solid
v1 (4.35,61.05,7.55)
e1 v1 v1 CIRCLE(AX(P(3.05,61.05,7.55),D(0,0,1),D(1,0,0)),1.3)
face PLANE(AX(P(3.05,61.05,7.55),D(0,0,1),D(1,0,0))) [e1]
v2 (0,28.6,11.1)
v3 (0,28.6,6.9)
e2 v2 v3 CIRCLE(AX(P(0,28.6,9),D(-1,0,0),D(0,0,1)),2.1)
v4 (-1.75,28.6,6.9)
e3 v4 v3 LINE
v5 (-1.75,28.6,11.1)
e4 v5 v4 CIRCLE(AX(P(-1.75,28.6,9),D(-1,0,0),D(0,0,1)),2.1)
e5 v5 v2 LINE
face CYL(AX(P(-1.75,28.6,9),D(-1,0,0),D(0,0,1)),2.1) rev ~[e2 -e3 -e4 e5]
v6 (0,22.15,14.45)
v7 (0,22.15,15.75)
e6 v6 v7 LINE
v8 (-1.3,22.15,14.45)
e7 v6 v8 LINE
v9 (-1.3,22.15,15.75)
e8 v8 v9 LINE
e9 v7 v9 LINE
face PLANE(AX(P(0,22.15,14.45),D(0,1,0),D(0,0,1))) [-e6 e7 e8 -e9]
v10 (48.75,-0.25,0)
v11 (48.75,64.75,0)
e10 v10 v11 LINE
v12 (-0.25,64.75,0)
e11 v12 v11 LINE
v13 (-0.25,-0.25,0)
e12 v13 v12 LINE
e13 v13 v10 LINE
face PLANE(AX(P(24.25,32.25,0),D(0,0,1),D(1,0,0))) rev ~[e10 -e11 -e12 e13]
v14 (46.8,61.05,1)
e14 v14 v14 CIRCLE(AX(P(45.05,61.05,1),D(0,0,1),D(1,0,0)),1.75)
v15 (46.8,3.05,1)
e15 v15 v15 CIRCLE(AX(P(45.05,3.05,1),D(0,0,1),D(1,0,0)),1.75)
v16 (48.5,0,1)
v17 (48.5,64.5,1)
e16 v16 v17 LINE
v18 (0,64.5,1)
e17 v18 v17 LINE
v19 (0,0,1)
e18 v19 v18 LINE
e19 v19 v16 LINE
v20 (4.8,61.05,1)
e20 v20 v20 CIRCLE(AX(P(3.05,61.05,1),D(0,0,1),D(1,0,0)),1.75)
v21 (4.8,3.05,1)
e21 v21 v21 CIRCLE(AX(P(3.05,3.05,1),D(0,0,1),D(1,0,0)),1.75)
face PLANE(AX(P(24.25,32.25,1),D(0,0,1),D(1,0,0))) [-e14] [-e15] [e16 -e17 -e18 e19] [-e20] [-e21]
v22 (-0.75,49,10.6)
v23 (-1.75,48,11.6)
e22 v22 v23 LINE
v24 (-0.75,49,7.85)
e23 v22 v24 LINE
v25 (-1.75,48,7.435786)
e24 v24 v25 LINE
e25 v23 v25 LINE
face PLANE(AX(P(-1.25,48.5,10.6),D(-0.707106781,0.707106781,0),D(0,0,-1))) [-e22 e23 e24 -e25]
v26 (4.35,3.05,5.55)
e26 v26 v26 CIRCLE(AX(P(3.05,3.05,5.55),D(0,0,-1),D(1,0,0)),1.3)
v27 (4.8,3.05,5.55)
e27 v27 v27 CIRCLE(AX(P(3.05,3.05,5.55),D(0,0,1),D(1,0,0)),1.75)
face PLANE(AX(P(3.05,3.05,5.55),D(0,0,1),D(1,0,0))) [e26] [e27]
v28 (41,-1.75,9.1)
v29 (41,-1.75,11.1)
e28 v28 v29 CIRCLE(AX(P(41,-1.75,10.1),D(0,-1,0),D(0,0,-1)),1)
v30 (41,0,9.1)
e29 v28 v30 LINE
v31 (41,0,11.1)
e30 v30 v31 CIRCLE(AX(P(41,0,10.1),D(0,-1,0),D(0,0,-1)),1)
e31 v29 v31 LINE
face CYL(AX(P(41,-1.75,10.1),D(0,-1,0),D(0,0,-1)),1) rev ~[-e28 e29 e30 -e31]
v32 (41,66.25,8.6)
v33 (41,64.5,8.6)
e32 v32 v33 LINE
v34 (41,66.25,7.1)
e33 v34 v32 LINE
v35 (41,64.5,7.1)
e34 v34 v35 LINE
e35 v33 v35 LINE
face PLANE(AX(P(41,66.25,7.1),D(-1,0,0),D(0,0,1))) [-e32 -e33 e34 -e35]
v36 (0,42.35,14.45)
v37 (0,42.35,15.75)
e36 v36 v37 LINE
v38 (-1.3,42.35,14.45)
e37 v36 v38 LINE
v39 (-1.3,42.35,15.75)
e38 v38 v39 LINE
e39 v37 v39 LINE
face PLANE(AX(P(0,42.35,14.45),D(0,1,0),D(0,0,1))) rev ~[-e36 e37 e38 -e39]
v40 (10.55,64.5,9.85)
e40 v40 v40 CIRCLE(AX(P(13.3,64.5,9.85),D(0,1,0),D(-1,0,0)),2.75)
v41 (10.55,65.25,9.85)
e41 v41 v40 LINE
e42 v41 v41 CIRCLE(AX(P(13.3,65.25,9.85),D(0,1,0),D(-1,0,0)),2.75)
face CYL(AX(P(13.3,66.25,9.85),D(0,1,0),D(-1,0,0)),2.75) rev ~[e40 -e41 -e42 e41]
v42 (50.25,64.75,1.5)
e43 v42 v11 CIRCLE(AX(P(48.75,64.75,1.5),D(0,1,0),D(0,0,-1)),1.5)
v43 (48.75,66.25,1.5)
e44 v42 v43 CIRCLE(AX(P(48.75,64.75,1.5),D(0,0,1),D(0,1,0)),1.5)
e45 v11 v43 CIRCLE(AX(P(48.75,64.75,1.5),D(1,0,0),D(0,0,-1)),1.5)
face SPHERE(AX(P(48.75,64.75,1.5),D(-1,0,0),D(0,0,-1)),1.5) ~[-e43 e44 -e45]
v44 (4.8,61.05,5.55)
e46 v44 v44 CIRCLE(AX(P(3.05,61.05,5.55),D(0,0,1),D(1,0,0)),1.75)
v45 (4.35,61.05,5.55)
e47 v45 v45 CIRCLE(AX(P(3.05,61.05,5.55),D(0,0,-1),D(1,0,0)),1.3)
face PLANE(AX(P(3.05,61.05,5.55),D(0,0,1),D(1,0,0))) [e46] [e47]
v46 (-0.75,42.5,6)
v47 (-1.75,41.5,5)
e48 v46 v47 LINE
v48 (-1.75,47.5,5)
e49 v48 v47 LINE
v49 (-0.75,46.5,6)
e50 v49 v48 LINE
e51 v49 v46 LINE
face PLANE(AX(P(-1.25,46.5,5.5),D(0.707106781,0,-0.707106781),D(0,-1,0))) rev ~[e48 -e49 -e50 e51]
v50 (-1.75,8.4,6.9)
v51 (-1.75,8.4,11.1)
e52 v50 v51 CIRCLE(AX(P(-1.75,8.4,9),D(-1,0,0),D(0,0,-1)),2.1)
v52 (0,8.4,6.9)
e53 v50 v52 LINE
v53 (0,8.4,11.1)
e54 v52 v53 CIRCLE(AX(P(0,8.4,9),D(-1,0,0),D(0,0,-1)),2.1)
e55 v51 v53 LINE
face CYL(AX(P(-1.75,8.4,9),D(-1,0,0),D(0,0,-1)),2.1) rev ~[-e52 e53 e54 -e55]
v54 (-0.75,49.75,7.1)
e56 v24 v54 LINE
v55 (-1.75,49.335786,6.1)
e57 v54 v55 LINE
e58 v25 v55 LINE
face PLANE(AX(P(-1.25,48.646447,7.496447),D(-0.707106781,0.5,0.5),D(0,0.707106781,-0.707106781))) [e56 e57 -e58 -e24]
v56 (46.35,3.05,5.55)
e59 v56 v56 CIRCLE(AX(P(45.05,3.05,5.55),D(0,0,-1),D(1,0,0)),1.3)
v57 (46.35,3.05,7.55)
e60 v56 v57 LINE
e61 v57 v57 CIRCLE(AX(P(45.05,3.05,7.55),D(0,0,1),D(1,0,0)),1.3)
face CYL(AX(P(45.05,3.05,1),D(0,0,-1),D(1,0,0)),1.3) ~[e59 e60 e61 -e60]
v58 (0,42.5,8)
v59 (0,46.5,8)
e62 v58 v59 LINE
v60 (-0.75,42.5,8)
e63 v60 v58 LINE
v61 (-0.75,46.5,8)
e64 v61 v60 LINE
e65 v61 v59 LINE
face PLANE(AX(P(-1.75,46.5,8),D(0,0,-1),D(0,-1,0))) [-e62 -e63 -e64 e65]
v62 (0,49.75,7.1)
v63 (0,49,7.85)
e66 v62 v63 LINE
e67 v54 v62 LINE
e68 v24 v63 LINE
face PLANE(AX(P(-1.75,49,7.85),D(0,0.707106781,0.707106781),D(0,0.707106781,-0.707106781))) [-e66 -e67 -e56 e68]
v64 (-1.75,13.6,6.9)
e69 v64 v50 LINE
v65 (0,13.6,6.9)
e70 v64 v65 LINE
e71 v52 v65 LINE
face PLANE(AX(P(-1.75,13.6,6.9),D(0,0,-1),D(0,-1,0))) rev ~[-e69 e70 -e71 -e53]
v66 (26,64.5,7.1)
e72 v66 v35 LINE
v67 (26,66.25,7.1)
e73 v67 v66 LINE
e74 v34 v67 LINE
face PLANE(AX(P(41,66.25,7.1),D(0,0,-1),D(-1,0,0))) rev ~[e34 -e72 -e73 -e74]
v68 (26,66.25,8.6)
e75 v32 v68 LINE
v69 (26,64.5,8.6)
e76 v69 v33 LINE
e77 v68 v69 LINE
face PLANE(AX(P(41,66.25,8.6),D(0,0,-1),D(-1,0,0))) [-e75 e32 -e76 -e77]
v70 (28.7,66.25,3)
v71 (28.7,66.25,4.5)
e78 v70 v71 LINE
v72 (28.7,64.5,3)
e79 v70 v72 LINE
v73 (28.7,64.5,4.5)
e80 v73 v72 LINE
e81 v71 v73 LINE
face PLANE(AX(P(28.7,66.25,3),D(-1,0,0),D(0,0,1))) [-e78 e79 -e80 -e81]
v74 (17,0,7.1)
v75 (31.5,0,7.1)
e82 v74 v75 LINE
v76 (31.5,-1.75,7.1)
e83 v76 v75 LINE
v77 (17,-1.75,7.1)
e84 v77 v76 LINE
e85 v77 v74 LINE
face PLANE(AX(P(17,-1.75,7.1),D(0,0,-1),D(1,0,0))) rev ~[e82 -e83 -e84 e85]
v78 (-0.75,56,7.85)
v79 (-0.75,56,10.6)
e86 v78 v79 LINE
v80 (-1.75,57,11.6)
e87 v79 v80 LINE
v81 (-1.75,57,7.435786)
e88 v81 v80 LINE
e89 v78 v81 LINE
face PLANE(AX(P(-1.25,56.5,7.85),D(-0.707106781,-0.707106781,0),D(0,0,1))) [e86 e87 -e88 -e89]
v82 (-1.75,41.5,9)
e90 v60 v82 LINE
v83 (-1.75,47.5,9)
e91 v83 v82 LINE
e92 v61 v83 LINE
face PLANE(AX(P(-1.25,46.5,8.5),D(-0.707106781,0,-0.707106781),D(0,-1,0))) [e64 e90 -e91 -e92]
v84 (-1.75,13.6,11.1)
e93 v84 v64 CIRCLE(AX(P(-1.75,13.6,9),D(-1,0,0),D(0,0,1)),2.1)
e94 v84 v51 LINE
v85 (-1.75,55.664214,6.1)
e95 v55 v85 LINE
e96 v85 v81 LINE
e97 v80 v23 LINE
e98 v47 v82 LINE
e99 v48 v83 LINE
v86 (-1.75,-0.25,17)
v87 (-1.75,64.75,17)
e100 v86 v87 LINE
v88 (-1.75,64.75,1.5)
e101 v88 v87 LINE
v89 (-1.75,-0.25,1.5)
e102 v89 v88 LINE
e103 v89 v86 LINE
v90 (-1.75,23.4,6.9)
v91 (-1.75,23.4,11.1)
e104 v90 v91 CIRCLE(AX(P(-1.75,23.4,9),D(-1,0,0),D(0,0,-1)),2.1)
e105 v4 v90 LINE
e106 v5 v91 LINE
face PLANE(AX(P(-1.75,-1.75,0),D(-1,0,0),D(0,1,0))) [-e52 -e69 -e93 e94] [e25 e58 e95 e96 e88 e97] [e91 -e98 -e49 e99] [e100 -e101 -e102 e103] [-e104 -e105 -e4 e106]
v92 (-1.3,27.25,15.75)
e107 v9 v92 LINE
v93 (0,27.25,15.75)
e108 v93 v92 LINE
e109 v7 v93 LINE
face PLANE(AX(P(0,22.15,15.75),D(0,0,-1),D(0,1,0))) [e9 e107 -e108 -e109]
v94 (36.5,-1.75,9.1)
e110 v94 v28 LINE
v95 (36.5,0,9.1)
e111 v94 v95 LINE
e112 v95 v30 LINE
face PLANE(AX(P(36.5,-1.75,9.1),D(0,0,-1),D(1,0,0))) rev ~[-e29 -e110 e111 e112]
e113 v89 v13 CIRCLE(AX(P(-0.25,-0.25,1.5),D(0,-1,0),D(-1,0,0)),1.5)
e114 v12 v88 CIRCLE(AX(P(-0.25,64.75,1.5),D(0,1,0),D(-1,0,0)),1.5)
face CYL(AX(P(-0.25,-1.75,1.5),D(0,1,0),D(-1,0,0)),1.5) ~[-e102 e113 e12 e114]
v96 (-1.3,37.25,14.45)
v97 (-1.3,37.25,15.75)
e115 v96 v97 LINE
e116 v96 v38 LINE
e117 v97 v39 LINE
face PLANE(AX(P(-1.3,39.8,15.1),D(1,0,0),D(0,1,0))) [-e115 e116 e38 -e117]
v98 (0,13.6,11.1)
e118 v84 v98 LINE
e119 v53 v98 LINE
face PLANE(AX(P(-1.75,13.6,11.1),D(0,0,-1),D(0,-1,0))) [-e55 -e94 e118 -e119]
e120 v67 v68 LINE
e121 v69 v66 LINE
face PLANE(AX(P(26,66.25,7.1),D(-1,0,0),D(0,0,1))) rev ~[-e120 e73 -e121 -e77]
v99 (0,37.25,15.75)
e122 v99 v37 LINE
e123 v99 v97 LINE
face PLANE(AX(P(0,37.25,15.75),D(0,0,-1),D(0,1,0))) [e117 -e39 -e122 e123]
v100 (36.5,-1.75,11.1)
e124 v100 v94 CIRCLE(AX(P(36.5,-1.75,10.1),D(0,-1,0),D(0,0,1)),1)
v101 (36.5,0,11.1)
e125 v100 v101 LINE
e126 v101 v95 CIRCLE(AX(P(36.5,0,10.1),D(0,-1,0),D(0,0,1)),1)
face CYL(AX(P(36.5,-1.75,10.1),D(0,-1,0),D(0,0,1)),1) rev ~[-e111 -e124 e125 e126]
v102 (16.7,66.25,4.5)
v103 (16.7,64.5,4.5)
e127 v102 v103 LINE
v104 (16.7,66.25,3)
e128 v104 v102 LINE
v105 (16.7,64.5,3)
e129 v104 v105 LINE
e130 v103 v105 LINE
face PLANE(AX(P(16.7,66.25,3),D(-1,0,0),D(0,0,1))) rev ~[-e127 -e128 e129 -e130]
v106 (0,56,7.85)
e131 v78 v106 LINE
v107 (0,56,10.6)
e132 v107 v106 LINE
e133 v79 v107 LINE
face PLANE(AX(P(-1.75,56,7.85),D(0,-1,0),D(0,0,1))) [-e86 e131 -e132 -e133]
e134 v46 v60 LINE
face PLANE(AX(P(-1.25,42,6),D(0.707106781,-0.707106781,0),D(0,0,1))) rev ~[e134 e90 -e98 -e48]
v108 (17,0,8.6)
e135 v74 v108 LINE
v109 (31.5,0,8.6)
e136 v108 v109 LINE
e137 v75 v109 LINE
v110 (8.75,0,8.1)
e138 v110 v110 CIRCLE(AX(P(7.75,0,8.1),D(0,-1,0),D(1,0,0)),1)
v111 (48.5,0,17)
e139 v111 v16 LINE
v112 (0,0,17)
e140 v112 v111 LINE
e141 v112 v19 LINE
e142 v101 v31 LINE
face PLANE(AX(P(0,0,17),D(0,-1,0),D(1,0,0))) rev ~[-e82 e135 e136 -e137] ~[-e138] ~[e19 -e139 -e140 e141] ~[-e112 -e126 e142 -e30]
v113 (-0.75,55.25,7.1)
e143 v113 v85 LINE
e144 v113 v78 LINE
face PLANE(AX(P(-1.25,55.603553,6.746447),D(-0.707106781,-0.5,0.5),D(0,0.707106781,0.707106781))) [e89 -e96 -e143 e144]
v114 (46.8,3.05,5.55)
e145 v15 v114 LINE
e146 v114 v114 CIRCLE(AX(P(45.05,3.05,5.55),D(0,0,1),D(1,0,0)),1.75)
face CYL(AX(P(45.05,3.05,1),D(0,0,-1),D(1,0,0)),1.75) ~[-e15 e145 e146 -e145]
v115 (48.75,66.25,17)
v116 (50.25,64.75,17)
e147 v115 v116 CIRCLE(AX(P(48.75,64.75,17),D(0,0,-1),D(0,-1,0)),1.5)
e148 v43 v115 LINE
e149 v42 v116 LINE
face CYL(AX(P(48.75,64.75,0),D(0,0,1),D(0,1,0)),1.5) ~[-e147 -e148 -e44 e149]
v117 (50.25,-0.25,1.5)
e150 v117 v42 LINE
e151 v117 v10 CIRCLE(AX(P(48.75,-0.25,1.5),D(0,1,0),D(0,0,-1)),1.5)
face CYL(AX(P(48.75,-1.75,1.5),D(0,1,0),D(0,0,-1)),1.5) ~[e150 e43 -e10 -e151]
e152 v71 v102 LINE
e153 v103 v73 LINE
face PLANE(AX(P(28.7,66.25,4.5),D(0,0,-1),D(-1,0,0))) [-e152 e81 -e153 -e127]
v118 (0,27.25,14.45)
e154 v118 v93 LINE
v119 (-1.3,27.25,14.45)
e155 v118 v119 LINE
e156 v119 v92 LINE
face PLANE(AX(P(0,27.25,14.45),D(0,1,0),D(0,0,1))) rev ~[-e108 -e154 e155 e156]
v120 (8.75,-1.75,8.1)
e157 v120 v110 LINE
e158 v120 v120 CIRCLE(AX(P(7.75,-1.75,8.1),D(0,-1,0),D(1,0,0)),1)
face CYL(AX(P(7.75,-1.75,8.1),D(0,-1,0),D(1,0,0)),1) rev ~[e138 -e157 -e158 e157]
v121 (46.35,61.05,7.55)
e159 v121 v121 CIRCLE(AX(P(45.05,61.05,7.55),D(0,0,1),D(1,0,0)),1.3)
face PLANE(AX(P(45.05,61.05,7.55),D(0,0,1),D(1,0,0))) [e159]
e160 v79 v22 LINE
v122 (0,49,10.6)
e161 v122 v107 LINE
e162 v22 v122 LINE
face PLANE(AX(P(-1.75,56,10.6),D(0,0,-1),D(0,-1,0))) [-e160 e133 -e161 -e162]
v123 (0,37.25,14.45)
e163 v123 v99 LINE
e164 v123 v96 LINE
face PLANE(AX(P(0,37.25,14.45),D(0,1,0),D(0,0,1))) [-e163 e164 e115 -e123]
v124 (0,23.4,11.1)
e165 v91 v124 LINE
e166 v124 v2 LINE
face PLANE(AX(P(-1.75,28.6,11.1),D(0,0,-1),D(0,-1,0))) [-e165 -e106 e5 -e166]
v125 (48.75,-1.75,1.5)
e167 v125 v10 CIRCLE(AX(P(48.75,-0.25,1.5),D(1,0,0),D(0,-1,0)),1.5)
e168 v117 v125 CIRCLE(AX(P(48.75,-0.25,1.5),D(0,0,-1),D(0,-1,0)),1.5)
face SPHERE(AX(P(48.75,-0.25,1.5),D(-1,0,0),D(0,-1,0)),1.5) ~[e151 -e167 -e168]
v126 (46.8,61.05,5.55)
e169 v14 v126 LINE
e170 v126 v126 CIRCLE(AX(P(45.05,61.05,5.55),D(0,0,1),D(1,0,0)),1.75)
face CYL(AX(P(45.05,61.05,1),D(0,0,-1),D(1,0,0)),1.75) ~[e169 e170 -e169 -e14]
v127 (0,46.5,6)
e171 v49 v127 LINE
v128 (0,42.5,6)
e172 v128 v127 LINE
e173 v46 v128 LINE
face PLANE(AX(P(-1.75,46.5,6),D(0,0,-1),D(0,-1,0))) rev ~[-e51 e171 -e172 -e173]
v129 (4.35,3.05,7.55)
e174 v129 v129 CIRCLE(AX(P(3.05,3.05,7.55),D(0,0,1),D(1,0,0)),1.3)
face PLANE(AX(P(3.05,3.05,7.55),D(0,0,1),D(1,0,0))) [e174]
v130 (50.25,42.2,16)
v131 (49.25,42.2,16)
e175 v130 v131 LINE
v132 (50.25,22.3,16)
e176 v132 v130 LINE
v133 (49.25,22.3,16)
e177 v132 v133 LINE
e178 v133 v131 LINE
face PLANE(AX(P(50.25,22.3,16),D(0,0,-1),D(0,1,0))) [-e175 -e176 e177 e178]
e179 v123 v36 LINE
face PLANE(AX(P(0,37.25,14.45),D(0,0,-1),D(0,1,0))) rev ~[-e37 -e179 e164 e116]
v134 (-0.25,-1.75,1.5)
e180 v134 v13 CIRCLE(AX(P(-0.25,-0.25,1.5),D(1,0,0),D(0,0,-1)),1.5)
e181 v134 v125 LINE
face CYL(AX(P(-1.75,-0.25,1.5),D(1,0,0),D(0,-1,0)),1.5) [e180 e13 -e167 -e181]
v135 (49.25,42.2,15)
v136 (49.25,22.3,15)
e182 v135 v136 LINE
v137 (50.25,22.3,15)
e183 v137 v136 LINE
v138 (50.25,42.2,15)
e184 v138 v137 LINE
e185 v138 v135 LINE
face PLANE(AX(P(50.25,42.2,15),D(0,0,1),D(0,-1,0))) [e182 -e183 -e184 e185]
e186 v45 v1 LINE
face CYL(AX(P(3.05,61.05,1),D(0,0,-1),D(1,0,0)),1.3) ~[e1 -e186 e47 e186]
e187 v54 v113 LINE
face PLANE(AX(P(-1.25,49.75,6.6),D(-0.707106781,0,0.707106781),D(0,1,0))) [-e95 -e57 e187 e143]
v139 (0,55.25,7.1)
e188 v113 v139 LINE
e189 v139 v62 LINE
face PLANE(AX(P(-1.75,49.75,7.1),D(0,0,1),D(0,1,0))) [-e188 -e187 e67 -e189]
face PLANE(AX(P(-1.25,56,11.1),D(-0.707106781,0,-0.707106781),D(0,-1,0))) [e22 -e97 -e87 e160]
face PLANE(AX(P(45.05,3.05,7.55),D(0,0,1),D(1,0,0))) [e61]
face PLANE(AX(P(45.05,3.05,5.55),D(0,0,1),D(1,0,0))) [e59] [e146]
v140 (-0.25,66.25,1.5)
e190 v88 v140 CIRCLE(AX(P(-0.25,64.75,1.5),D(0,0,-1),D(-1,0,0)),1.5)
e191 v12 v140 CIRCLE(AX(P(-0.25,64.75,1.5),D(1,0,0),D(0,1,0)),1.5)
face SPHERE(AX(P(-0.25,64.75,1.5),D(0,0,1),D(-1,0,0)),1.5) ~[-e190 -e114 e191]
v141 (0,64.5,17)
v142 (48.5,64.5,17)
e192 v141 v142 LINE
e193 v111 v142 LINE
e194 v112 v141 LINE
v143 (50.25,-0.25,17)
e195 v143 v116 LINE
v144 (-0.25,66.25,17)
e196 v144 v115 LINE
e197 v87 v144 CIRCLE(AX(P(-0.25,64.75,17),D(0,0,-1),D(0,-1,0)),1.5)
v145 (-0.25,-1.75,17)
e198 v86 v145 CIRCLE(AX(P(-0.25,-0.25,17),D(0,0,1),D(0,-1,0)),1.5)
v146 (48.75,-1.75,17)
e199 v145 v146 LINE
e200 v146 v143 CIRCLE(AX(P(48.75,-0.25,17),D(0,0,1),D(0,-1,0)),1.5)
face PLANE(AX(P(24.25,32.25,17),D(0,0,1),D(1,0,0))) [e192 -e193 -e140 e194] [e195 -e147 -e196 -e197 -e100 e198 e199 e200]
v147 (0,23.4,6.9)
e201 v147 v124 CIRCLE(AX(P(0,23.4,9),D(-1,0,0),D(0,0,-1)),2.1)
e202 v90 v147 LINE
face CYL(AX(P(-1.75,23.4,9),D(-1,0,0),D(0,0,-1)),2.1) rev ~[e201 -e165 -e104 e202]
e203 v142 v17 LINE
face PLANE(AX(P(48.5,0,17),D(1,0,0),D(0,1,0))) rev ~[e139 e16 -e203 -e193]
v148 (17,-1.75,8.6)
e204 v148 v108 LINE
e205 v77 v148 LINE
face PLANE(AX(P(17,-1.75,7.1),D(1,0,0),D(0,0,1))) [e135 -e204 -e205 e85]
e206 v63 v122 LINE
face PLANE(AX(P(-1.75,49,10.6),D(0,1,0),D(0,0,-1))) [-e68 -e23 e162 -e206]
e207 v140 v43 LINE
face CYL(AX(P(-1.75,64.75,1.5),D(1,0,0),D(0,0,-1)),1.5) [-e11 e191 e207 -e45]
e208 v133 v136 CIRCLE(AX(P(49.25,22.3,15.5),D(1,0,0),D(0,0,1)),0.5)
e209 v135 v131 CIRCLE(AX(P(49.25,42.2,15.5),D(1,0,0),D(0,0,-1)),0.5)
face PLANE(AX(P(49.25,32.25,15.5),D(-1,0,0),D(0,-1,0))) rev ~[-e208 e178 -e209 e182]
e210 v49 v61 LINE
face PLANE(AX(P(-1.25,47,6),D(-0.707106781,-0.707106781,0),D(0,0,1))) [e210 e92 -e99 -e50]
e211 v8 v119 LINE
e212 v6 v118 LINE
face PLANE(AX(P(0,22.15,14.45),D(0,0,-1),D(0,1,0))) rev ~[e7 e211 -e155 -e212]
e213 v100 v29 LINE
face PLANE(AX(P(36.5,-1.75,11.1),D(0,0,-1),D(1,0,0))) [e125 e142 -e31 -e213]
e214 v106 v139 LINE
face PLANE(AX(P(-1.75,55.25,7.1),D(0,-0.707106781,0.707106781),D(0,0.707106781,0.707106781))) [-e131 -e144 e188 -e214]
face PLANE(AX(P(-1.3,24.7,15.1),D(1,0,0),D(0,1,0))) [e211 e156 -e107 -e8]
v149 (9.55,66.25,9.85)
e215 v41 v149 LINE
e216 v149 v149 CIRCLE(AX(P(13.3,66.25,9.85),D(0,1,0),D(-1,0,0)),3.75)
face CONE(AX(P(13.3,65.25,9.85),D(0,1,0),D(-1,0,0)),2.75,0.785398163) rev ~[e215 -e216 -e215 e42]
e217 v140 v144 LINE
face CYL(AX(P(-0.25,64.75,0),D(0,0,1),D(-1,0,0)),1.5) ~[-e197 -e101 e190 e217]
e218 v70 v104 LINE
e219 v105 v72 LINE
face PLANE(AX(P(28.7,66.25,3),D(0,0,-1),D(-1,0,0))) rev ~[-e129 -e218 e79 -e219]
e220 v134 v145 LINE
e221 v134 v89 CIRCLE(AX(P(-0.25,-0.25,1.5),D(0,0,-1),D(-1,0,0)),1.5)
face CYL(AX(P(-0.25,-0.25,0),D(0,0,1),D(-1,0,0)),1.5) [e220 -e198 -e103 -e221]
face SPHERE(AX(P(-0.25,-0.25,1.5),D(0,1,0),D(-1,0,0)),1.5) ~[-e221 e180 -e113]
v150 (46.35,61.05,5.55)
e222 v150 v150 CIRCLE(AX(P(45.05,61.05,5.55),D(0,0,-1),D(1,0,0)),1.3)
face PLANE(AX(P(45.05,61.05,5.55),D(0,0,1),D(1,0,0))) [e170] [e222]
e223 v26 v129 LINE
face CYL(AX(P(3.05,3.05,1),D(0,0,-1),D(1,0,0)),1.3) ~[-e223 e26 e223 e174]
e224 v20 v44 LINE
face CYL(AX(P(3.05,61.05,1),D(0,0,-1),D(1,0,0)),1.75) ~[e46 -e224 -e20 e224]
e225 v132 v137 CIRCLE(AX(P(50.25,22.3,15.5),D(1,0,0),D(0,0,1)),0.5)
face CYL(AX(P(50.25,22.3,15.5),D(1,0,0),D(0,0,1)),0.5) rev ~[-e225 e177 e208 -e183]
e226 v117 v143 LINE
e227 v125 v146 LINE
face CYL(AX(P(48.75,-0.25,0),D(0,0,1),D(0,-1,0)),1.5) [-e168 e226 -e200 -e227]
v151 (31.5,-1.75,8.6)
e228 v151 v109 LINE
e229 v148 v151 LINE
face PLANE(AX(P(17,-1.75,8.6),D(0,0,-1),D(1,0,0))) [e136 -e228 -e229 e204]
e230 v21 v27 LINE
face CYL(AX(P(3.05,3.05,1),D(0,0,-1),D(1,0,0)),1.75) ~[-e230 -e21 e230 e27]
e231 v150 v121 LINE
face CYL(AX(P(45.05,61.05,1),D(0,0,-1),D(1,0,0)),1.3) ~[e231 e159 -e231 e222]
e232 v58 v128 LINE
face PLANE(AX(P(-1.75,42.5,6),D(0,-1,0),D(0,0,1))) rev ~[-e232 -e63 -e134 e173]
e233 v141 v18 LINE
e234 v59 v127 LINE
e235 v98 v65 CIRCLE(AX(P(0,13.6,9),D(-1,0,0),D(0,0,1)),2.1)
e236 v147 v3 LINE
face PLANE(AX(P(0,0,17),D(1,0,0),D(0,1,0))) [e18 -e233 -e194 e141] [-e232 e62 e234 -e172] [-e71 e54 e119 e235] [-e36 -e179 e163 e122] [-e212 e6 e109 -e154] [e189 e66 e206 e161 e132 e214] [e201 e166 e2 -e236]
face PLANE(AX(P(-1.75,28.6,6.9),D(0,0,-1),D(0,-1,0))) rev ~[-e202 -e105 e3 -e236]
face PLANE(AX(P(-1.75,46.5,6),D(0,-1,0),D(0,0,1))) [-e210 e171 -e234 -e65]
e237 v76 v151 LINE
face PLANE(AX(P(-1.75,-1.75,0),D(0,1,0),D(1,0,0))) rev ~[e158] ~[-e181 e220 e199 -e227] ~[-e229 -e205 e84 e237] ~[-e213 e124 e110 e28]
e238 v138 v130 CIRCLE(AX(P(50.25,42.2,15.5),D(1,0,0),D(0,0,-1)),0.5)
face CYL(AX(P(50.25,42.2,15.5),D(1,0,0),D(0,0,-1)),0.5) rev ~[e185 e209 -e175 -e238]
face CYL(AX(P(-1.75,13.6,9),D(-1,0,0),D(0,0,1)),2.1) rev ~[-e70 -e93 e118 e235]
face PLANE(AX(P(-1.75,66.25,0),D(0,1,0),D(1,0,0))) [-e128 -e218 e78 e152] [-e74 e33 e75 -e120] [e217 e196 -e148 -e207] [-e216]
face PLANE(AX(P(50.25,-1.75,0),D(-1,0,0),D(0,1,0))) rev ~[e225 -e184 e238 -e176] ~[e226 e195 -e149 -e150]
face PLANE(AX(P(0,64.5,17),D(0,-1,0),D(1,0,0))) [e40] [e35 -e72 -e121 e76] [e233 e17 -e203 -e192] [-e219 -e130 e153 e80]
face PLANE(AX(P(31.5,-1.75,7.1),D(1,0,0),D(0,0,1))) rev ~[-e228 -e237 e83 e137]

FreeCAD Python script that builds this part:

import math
import FreeCAD as App
import Part
import Sketcher


def edges_at(feature, points):
    """Names of the edges that pass closest to the given points."""
    edges = feature.Shape.Edges
    near = lambda p: min(range(len(edges)), key=lambda i: edges[i].distToShape(Part.Vertex(*p))[0])
    return sorted({f"Edge{near(p) + 1}" for p in points})

doc = App.newDocument("Part")
body = doc.addObject("PartDesign::Body", "Body")

sketch1 = body.newObject("Sketcher::SketchObject", "Sketch")
sketch1.AttachmentSupport = (doc.getObject("XY_Plane"), [""])
sketch1.MapMode = "FlatFace"
sketch1.addGeometry(Part.LineSegment(App.Vector(-2, 66, 0), App.Vector(-2, -2, 0)), False)
sketch1.addGeometry(Part.LineSegment(App.Vector(-2, -2, 0), App.Vector(50, -2, 0)), False)
sketch1.addGeometry(Part.LineSegment(App.Vector(50, -2, 0), App.Vector(50, 66, 0)), False)
sketch1.addGeometry(Part.LineSegment(App.Vector(50, 66, 0), App.Vector(-2, 66, 0)), False)
sketch1.addConstraint(Sketcher.Constraint("Coincident", 0, 2, 1, 1))
sketch1.addConstraint(Sketcher.Constraint("Coincident", 1, 2, 2, 1))
sketch1.addConstraint(Sketcher.Constraint("Coincident", 2, 2, 3, 1))
sketch1.addConstraint(Sketcher.Constraint("Coincident", 3, 2, 0, 1))
sketch1.addConstraint(Sketcher.Constraint("Vertical", 0))
sketch1.addConstraint(Sketcher.Constraint("Horizontal", 1))
sketch1.addConstraint(Sketcher.Constraint("Vertical", 2))
sketch1.addConstraint(Sketcher.Constraint("Horizontal", 3))
sketch1.addConstraint(Sketcher.Constraint("DistanceX", 1, 1, 1, 2, 52.0))
sketch1.addConstraint(Sketcher.Constraint("DistanceY", 0, 2, 0, 1, 68.0))
sketch1.addConstraint(Sketcher.Constraint("DistanceX", 0, 2, -1, 1, 1.75))
sketch1.addConstraint(Sketcher.Constraint("DistanceY", 0, 2, -1, 1, 1.75))
pad1 = body.newObject("PartDesign::Pad", "Pad")
pad1.Profile = sketch1
pad1.Length = 17

sketch2 = body.newObject("Sketcher::SketchObject", "Sketch001")
sketch2.AttachmentSupport = (doc.getObject("XY_Plane"), [""])
sketch2.MapMode = "FlatFace"
sketch2.AttachmentOffset = App.Placement(App.Vector(0, 0, 17), App.Rotation())
sketch2.addGeometry(Part.LineSegment(App.Vector(0, 64, 0), App.Vector(0, 0, 0)), False)
sketch2.addGeometry(Part.LineSegment(App.Vector(0, 0, 0), App.Vector(48, 0, 0)), False)
sketch2.addGeometry(Part.LineSegment(App.Vector(48, 0, 0), App.Vector(48, 64, 0)), False)
sketch2.addGeometry(Part.LineSegment(App.Vector(48, 64, 0), App.Vector(0, 64, 0)), False)
sketch2.addConstraint(Sketcher.Constraint("Coincident", 0, 2, 1, 1))
sketch2.addConstraint(Sketcher.Constraint("Coincident", 1, 2, 2, 1))
sketch2.addConstraint(Sketcher.Constraint("Coincident", 2, 2, 3, 1))
sketch2.addConstraint(Sketcher.Constraint("Coincident", 3, 2, 0, 1))
sketch2.addConstraint(Sketcher.Constraint("Vertical", 0))
sketch2.addConstraint(Sketcher.Constraint("Horizontal", 1))
sketch2.addConstraint(Sketcher.Constraint("Vertical", 2))
sketch2.addConstraint(Sketcher.Constraint("Horizontal", 3))
sketch2.addConstraint(Sketcher.Constraint("Coincident", 0, 2, -1, 1))
sketch2.addConstraint(Sketcher.Constraint("DistanceX", 1, 1, 1, 2, 48.5))
sketch2.addConstraint(Sketcher.Constraint("DistanceY", 0, 2, 0, 1, 64.5))
pocket1 = body.newObject("PartDesign::Pocket", "Pocket")
pocket1.Profile = sketch2
pocket1.Length = 16

sketch3 = body.newObject("Sketcher::SketchObject", "Sketch002")
sketch3.AttachmentSupport = (doc.getObject("XY_Plane"), [""])
sketch3.MapMode = "FlatFace"
sketch3.AttachmentOffset = App.Placement(App.Vector(0, 0, 1), App.Rotation())
sketch3.addGeometry(Part.Circle(App.Vector(3, 3, 0), App.Vector(0, 0, 1), 1.8), False)
sketch3.addGeometry(Part.Circle(App.Vector(3, 61, 0), App.Vector(0, 0, 1), 1.8), False)
sketch3.addGeometry(Part.Circle(App.Vector(45, 3, 0), App.Vector(0, 0, 1), 1.8), False)
sketch3.addGeometry(Part.Circle(App.Vector(45, 61, 0), App.Vector(0, 0, 1), 1.8), False)
sketch3.addConstraint(Sketcher.Constraint("Equal", 0, 1))
sketch3.addConstraint(Sketcher.Constraint("Equal", 1, 2))
sketch3.addConstraint(Sketcher.Constraint("Equal", 2, 3))
sketch3.addConstraint(Sketcher.Constraint("Horizontal", 0, 3, 2, 3))
sketch3.addConstraint(Sketcher.Constraint("Horizontal", 1, 3, 3, 3))
sketch3.addConstraint(Sketcher.Constraint("Vertical", 0, 3, 1, 3))
sketch3.addConstraint(Sketcher.Constraint("Vertical", 2, 3, 3, 3))
sketch3.addConstraint(Sketcher.Constraint("Diameter", 0, 3.5))
sketch3.addConstraint(Sketcher.Constraint("DistanceY", 0, 3, 1, 3, 58.0))
sketch3.addConstraint(Sketcher.Constraint("DistanceX", 0, 3, 2, 3, 42.0))
sketch3.addConstraint(Sketcher.Constraint("DistanceX", -1, 1, 0, 3, 3.05))
sketch3.addConstraint(Sketcher.Constraint("DistanceY", -1, 1, 0, 3, 3.05))
pad2 = body.newObject("PartDesign::Pad", "Pad001")
pad2.Profile = sketch3
pad2.Length = 4.55

sketch4 = body.newObject("Sketcher::SketchObject", "Sketch003")
sketch4.AttachmentSupport = (doc.getObject("XY_Plane"), [""])
sketch4.MapMode = "FlatFace"
sketch4.AttachmentOffset = App.Placement(App.Vector(0, 0, 1), App.Rotation())
sketch4.addGeometry(Part.Circle(App.Vector(3, 61, 0), App.Vector(0, 0, 1), 1.3), False)
sketch4.addGeometry(Part.Circle(App.Vector(45, 61, 0), App.Vector(0, 0, 1), 1.3), False)
sketch4.addGeometry(Part.Circle(App.Vector(3, 3, 0), App.Vector(0, 0, 1), 1.3), False)
sketch4.addGeometry(Part.Circle(App.Vector(45, 3, 0), App.Vector(0, 0, 1), 1.3), False)
sketch4.addConstraint(Sketcher.Constraint("Equal", 0, 1))
sketch4.addConstraint(Sketcher.Constraint("Equal", 1, 2))
sketch4.addConstraint(Sketcher.Constraint("Equal", 2, 3))
sketch4.addConstraint(Sketcher.Constraint("Horizontal", 0, 3, 1, 3))
sketch4.addConstraint(Sketcher.Constraint("Horizontal", 2, 3, 3, 3))
sketch4.addConstraint(Sketcher.Constraint("Vertical", 0, 3, 2, 3))
sketch4.addConstraint(Sketcher.Constraint("Vertical", 1, 3, 3, 3))
sketch4.addConstraint(Sketcher.Constraint("Diameter", 0, 2.6))
sketch4.addConstraint(Sketcher.Constraint("DistanceX", 0, 3, 1, 3, 42.0))
sketch4.addConstraint(Sketcher.Constraint("DistanceY", 2, 3, 0, 3, 58.0))
sketch4.addConstraint(Sketcher.Constraint("DistanceX", -1, 1, 0, 3, 3.05))
sketch4.addConstraint(Sketcher.Constraint("DistanceY", -1, 1, 0, 3, 61.05))
pad3 = body.newObject("PartDesign::Pad", "Pad002")
pad3.Profile = sketch4
pad3.Length = 6.55

sketch5 = body.newObject("Sketcher::SketchObject", "Sketch004")
sketch5.AttachmentSupport = (doc.getObject("YZ_Plane"), [""])
sketch5.MapMode = "FlatFace"
sketch5.AttachmentOffset = App.Placement(App.Vector(0, 0, -1.75), App.Rotation())
sketch5.addGeometry(Part.ArcOfCircle(Part.Circle(App.Vector(28.6, 9, 0), App.Vector(0, 0, 1), 2.1), math.radians(-90), math.radians(90)), False)
sketch5.addGeometry(Part.LineSegment(App.Vector(28.6, 6.9, 0), App.Vector(23.4, 6.9, 0)), False)
sketch5.addGeometry(Part.ArcOfCircle(Part.Circle(App.Vector(23.4, 9, 0), App.Vector(0, 0, 1), 2.1), math.radians(90), math.radians(270)), False)
sketch5.addGeometry(Part.LineSegment(App.Vector(23.4, 11.1, 0), App.Vector(28.6, 11.1, 0)), False)
sketch5.addGeometry(Part.ArcOfCircle(Part.Circle(App.Vector(13.6, 9, 0), App.Vector(0, 0, 1), 2.1), math.radians(-90), math.radians(90)), False)
sketch5.addGeometry(Part.LineSegment(App.Vector(13.6, 6.9, 0), App.Vector(8.4, 6.9, 0)), False)
sketch5.addGeometry(Part.ArcOfCircle(Part.Circle(App.Vector(8.4, 9, 0), App.Vector(0, 0, 1), 2.1), math.radians(90), math.radians(270)), False)
sketch5.addGeometry(Part.LineSegment(App.Vector(8.4, 11.1, 0), App.Vector(13.6, 11.1, 0)), False)
sketch5.addGeometry(Part.LineSegment(App.Vector(46.5, 8, 0), App.Vector(46.5, 6, 0)), False)
sketch5.addGeometry(Part.LineSegment(App.Vector(46.5, 6, 0), App.Vector(42.5, 6, 0)), False)
sketch5.addGeometry(Part.LineSegment(App.Vector(42.5, 6, 0), App.Vector(42.5, 8, 0)), False)
sketch5.addGeometry(Part.LineSegment(App.Vector(42.5, 8, 0), App.Vector(46.5, 8, 0)), False)
sketch5.addConstraint(Sketcher.Constraint("Tangent", 0, 1, 1, 1))
sketch5.addConstraint(Sketcher.Constraint("Tangent", 1, 2, 2, 2))
sketch5.addConstraint(Sketcher.Constraint("Tangent", 2, 1, 3, 1))
sketch5.addConstraint(Sketcher.Constraint("Tangent", 3, 2, 0, 2))
sketch5.addConstraint(Sketcher.Constraint("Tangent", 4, 1, 5, 1))
sketch5.addConstraint(Sketcher.Constraint("Tangent", 5, 2, 6, 2))
sketch5.addConstraint(Sketcher.Constraint("Tangent", 6, 1, 7, 1))
sketch5.addConstraint(Sketcher.Constraint("Tangent", 7, 2, 4, 2))
sketch5.addConstraint(Sketcher.Constraint("Coincident", 8, 2, 9, 1))
sketch5.addConstraint(Sketcher.Constraint("Coincident", 9, 2, 10, 1))
sketch5.addConstraint(Sketcher.Constraint("Coincident", 10, 2, 11, 1))
sketch5.addConstraint(Sketcher.Constraint("Coincident", 11, 2, 8, 1))
sketch5.addConstraint(Sketcher.Constraint("Horizontal", 1))
sketch5.addConstraint(Sketcher.Constraint("Horizontal", 3))
sketch5.addConstraint(Sketcher.Constraint("Horizontal", 5))
sketch5.addConstraint(Sketcher.Constraint("Horizontal", 7))
sketch5.addConstraint(Sketcher.Constraint("Vertical", 8))
sketch5.addConstraint(Sketcher.Constraint("Horizontal", 9))
sketch5.addConstraint(Sketcher.Constraint("Vertical", 10))
sketch5.addConstraint(Sketcher.Constraint("Horizontal", 11))
sketch5.addConstraint(Sketcher.Constraint("Equal", 2, 4))
sketch5.addConstraint(Sketcher.Constraint("Horizontal", 2, 3, 4, 3))
sketch5.addConstraint(Sketcher.Constraint("Equal", 3, 5))
sketch5.addConstraint(Sketcher.Constraint("Radius", 0, 2.1))
sketch5.addConstraint(Sketcher.Constraint("DistanceX", 9, 2, 9, 1, 4.0))
sketch5.addConstraint(Sketcher.Constraint("DistanceY", 8, 2, 8, 1, 2.0))
sketch5.addConstraint(Sketcher.Constraint("DistanceX", 1, 2, 1, 1, 5.2))
sketch5.addConstraint(Sketcher.Constraint("DistanceY", -1, 1, 0, 3, 9.0))
sketch5.addConstraint(Sketcher.Constraint("DistanceY", -1, 1, 8, 2, 6.0))
sketch5.addConstraint(Sketcher.Constraint("DistanceX", 4, 3, 0, 3, 15.0))
sketch5.addConstraint(Sketcher.Constraint("DistanceX", -1, 1, 0, 3, 28.6))
sketch5.addConstraint(Sketcher.Constraint("DistanceX", -1, 1, 8, 2, 46.5))
pocket2 = body.newObject("PartDesign::Pocket", "Pocket001")
pocket2.Profile = sketch5
pocket2.Length = 5
pocket2.Reversed = True

sketch6 = body.newObject("Sketcher::SketchObject", "Sketch005")
sketch6.AttachmentSupport = (doc.getObject("YZ_Plane"), [""])
sketch6.MapMode = "FlatFace"
sketch6.AttachmentOffset = App.Placement(App.Vector(0, 0, -1.75), App.Rotation())
sketch6.addGeometry(Part.LineSegment(App.Vector(49, 10.6, 0), App.Vector(56, 10.6, 0)), False)
sketch6.addGeometry(Part.LineSegment(App.Vector(56, 10.6, 0), App.Vector(56, 7.8, 0)), False)
sketch6.addGeometry(Part.LineSegment(App.Vector(56, 7.8, 0), App.Vector(55.2, 7.1, 0)), False)
sketch6.addGeometry(Part.LineSegment(App.Vector(55.2, 7.1, 0), App.Vector(49.8, 7.1, 0)), False)
sketch6.addGeometry(Part.LineSegment(App.Vector(49.8, 7.1, 0), App.Vector(49, 7.8, 0)), False)
sketch6.addGeometry(Part.LineSegment(App.Vector(49, 7.8, 0), App.Vector(49, 10.6, 0)), False)
sketch6.addConstraint(Sketcher.Constraint("Coincident", 0, 2, 1, 1))
sketch6.addConstraint(Sketcher.Constraint("Coincident", 1, 2, 2, 1))
sketch6.addConstraint(Sketcher.Constraint("Coincident", 2, 2, 3, 1))
sketch6.addConstraint(Sketcher.Constraint("Coincident", 3, 2, 4, 1))
sketch6.addConstraint(Sketcher.Constraint("Coincident", 4, 2, 5, 1))
sketch6.addConstraint(Sketcher.Constraint("Coincident", 5, 2, 0, 1))
sketch6.addConstraint(Sketcher.Constraint("Horizontal", 0))
sketch6.addConstraint(Sketcher.Constraint("Vertical", 1))
sketch6.addConstraint(Sketcher.Constraint("Horizontal", 3))
sketch6.addConstraint(Sketcher.Constraint("Vertical", 5))
sketch6.addConstraint(Sketcher.Constraint("Perpendicular", 2, 4))
sketch6.addConstraint(Sketcher.Constraint("Horizontal", 1, 2, 4, 2))
sketch6.addConstraint(Sketcher.Constraint("Equal", 2, 4))
sketch6.addConstraint(Sketcher.Constraint("DistanceX", 0, 1, 0, 2, 7.0))
sketch6.addConstraint(Sketcher.Constraint("DistanceX", 3, 2, 3, 1, 5.5))
sketch6.addConstraint(Sketcher.Constraint("DistanceX", -1, 1, 0, 2, 56.0))
sketch6.addConstraint(Sketcher.Constraint("DistanceY", 1, 2, 1, 1, 2.75))
sketch6.addConstraint(Sketcher.Constraint("DistanceY", -1, 1, 0, 2, 10.6))
pocket3 = body.newObject("PartDesign::Pocket", "Pocket002")
pocket3.Profile = sketch6
pocket3.Length = 5
pocket3.Reversed = True

sketch7 = body.newObject("Sketcher::SketchObject", "Sketch006")
sketch7.AttachmentSupport = (doc.getObject("XZ_Plane"), [""])
sketch7.MapMode = "FlatFace"
sketch7.AttachmentOffset = App.Placement(App.Vector(0, 0, -66.25), App.Rotation())
sketch7.addGeometry(Part.Circle(App.Vector(13.3, 9.8, 0), App.Vector(0, 0, 1), 2.8), False)
sketch7.addGeometry(Part.LineSegment(App.Vector(28.7, 4.5, 0), App.Vector(28.7, 3, 0)), False)
sketch7.addGeometry(Part.LineSegment(App.Vector(28.7, 3, 0), App.Vector(16.7, 3, 0)), False)
sketch7.addGeometry(Part.LineSegment(App.Vector(16.7, 3, 0), App.Vector(16.7, 4.5, 0)), False)
sketch7.addGeometry(Part.LineSegment(App.Vector(16.7, 4.5, 0), App.Vector(28.7, 4.5, 0)), False)
sketch7.addGeometry(Part.LineSegment(App.Vector(41, 8.6, 0), App.Vector(41, 7.1, 0)), False)
sketch7.addGeometry(Part.LineSegment(App.Vector(41, 7.1, 0), App.Vector(26, 7.1, 0)), False)
sketch7.addGeometry(Part.LineSegment(App.Vector(26, 7.1, 0), App.Vector(26, 8.6, 0)), False)
sketch7.addGeometry(Part.LineSegment(App.Vector(26, 8.6, 0), App.Vector(41, 8.6, 0)), False)
sketch7.addConstraint(Sketcher.Constraint("Coincident", 1, 2, 2, 1))
sketch7.addConstraint(Sketcher.Constraint("Coincident", 2, 2, 3, 1))
sketch7.addConstraint(Sketcher.Constraint("Coincident", 3, 2, 4, 1))
sketch7.addConstraint(Sketcher.Constraint("Coincident", 4, 2, 1, 1))
sketch7.addConstraint(Sketcher.Constraint("Coincident", 5, 2, 6, 1))
sketch7.addConstraint(Sketcher.Constraint("Coincident", 6, 2, 7, 1))
sketch7.addConstraint(Sketcher.Constraint("Coincident", 7, 2, 8, 1))
sketch7.addConstraint(Sketcher.Constraint("Coincident", 8, 2, 5, 1))
sketch7.addConstraint(Sketcher.Constraint("Vertical", 1))
sketch7.addConstraint(Sketcher.Constraint("Horizontal", 2))
sketch7.addConstraint(Sketcher.Constraint("Vertical", 3))
sketch7.addConstraint(Sketcher.Constraint("Horizontal", 4))
sketch7.addConstraint(Sketcher.Constraint("Vertical", 5))
sketch7.addConstraint(Sketcher.Constraint("Horizontal", 6))
sketch7.addConstraint(Sketcher.Constraint("Vertical", 7))
sketch7.addConstraint(Sketcher.Constraint("Horizontal", 8))
sketch7.addConstraint(Sketcher.Constraint("Equal", 3, 5))
sketch7.addConstraint(Sketcher.Constraint("Diameter", 0, 5.5))
sketch7.addConstraint(Sketcher.Constraint("DistanceX", 2, 2, 2, 1, 12.0))
sketch7.addConstraint(Sketcher.Constraint("DistanceX", 6, 2, 6, 1, 15.0))
sketch7.addConstraint(Sketcher.Constraint("DistanceY", 1, 2, 1, 1, 1.5))
sketch7.addConstraint(Sketcher.Constraint("DistanceY", -1, 1, 1, 2, 3.0))
sketch7.addConstraint(Sketcher.Constraint("DistanceX", -1, 1, 5, 2, 41.0))
sketch7.addConstraint(Sketcher.Constraint("DistanceX", -1, 1, 0, 3, 13.3))
sketch7.addConstraint(Sketcher.Constraint("DistanceX", -1, 1, 1, 2, 28.7))
sketch7.addConstraint(Sketcher.Constraint("DistanceY", -1, 1, 5, 2, 7.1))
sketch7.addConstraint(Sketcher.Constraint("DistanceY", -1, 1, 0, 3, 9.85))
pocket4 = body.newObject("PartDesign::Pocket", "Pocket003")
pocket4.Profile = sketch7
pocket4.Length = 5
pocket4.Reversed = True

sketch8 = body.newObject("Sketcher::SketchObject", "Sketch007")
sketch8.AttachmentSupport = (doc.getObject("XZ_Plane"), [""])
sketch8.MapMode = "FlatFace"
sketch8.AttachmentOffset = App.Placement(App.Vector(0, 0, 1.75), App.Rotation())
sketch8.addGeometry(Part.Circle(App.Vector(7.8, 8.1, 0), App.Vector(0, 0, 1), 1), False)
sketch8.addGeometry(Part.LineSegment(App.Vector(17, 8.6, 0), App.Vector(17, 7.1, 0)), False)
sketch8.addGeometry(Part.LineSegment(App.Vector(17, 7.1, 0), App.Vector(31.5, 7.1, 0)), False)
sketch8.addGeometry(Part.LineSegment(App.Vector(31.5, 7.1, 0), App.Vector(31.5, 8.6, 0)), False)
sketch8.addGeometry(Part.LineSegment(App.Vector(31.5, 8.6, 0), App.Vector(17, 8.6, 0)), False)
sketch8.addGeometry(Part.ArcOfCircle(Part.Circle(App.Vector(36.5, 10.1, 0), App.Vector(0, 0, 1), 1), math.radians(90), math.radians(270)), False)
sketch8.addGeometry(Part.LineSegment(App.Vector(36.5, 9.1, 0), App.Vector(41, 9.1, 0)), False)
sketch8.addGeometry(Part.ArcOfCircle(Part.Circle(App.Vector(41, 10.1, 0), App.Vector(0, 0, 1), 1), math.radians(-90), math.radians(90)), False)
sketch8.addGeometry(Part.LineSegment(App.Vector(41, 11.1, 0), App.Vector(36.5, 11.1, 0)), False)
sketch8.addConstraint(Sketcher.Constraint("Coincident", 1, 2, 2, 1))
sketch8.addConstraint(Sketcher.Constraint("Coincident", 2, 2, 3, 1))
sketch8.addConstraint(Sketcher.Constraint("Coincident", 3, 2, 4, 1))
sketch8.addConstraint(Sketcher.Constraint("Coincident", 4, 2, 1, 1))
sketch8.addConstraint(Sketcher.Constraint("Tangent", 5, 2, 6, 1))
sketch8.addConstraint(Sketcher.Constraint("Tangent", 6, 2, 7, 1))
sketch8.addConstraint(Sketcher.Constraint("Tangent", 7, 2, 8, 1))
sketch8.addConstraint(Sketcher.Constraint("Tangent", 8, 2, 5, 1))
sketch8.addConstraint(Sketcher.Constraint("Vertical", 1))
sketch8.addConstraint(Sketcher.Constraint("Horizontal", 2))
sketch8.addConstraint(Sketcher.Constraint("Vertical", 3))
sketch8.addConstraint(Sketcher.Constraint("Horizontal", 4))
sketch8.addConstraint(Sketcher.Constraint("Horizontal", 6))
sketch8.addConstraint(Sketcher.Constraint("Horizontal", 8))
sketch8.addConstraint(Sketcher.Constraint("Equal", 0, 5))
sketch8.addConstraint(Sketcher.Constraint("Diameter", 0, 2.0))
sketch8.addConstraint(Sketcher.Constraint("DistanceX", 2, 1, 2, 2, 14.5))
sketch8.addConstraint(Sketcher.Constraint("DistanceX", 6, 1, 6, 2, 4.5))
sketch8.addConstraint(Sketcher.Constraint("DistanceY", 1, 2, 1, 1, 1.5))
sketch8.addConstraint(Sketcher.Constraint("DistanceX", -1, 1, 7, 3, 41.0))
sketch8.addConstraint(Sketcher.Constraint("DistanceX", -1, 1, 1, 2, 17.0))
sketch8.addConstraint(Sketcher.Constraint("DistanceY", 0, 3, 5, 3, 2.0))
sketch8.addConstraint(Sketcher.Constraint("DistanceY", 1, 2, 0, 3, 1.0))
sketch8.addConstraint(Sketcher.Constraint("DistanceY", -1, 1, 0, 3, 8.1))
sketch8.addConstraint(Sketcher.Constraint("DistanceX", -1, 1, 0, 3, 7.75))
pocket5 = body.newObject("PartDesign::Pocket", "Pocket004")
pocket5.Profile = sketch8
pocket5.Length = 5

sketch9 = body.newObject("Sketcher::SketchObject", "Sketch008")
sketch9.AttachmentSupport = (doc.getObject("YZ_Plane"), [""])
sketch9.MapMode = "FlatFace"
sketch9.AttachmentOffset = App.Placement(App.Vector(0, 0, 50.25), App.Rotation())
sketch9.addGeometry(Part.LineSegment(App.Vector(42.2, 16, 0), App.Vector(22.3, 16, 0)), False)
sketch9.addGeometry(Part.ArcOfCircle(Part.Circle(App.Vector(22.3, 15.5, 0), App.Vector(0, 0, 1), 0.5), math.radians(90), math.radians(270)), False)
sketch9.addGeometry(Part.LineSegment(App.Vector(22.3, 15, 0), App.Vector(42.2, 15, 0)), False)
sketch9.addGeometry(Part.ArcOfCircle(Part.Circle(App.Vector(42.2, 15.5, 0), App.Vector(0, 0, 1), 0.5), math.radians(-90), math.radians(90)), False)
sketch9.addConstraint(Sketcher.Constraint("Tangent", 0, 2, 1, 1))
sketch9.addConstraint(Sketcher.Constraint("Tangent", 1, 2, 2, 1))
sketch9.addConstraint(Sketcher.Constraint("Tangent", 2, 2, 3, 1))
sketch9.addConstraint(Sketcher.Constraint("Tangent", 3, 2, 0, 1))
sketch9.addConstraint(Sketcher.Constraint("Horizontal", 0))
sketch9.addConstraint(Sketcher.Constraint("Horizontal", 2))
sketch9.addConstraint(Sketcher.Constraint("Radius", 1, 0.5))
sketch9.addConstraint(Sketcher.Constraint("DistanceX", 0, 2, 0, 1, 19.9))
sketch9.addConstraint(Sketcher.Constraint("DistanceY", -1, 1, 0, 2, 16.0))
sketch9.addConstraint(Sketcher.Constraint("DistanceX", -1, 1, 1, 3, 22.3))
pocket6 = body.newObject("PartDesign::Pocket", "Pocket005")
pocket6.Profile = sketch9
pocket6.Length = 1

sketch10 = body.newObject("Sketcher::SketchObject", "Sketch009")
sketch10.AttachmentSupport = (doc.getObject("YZ_Plane"), [""])
sketch10.MapMode = "FlatFace"
sketch10.addGeometry(Part.LineSegment(App.Vector(22.1, 15.8, 0), App.Vector(22.1, 14.4, 0)), False)
sketch10.addGeometry(Part.LineSegment(App.Vector(22.1, 14.4, 0), App.Vector(27.2, 14.4, 0)), False)
sketch10.addGeometry(Part.LineSegment(App.Vector(27.2, 14.4, 0), App.Vector(27.2, 15.8, 0)), False)
sketch10.addGeometry(Part.LineSegment(App.Vector(27.2, 15.8, 0), App.Vector(22.1, 15.8, 0)), False)
sketch10.addGeometry(Part.LineSegment(App.Vector(37.2, 15.8, 0), App.Vector(37.2, 14.4, 0)), False)
sketch10.addGeometry(Part.LineSegment(App.Vector(37.2, 14.4, 0), App.Vector(42.4, 14.4, 0)), False)
sketch10.addGeometry(Part.LineSegment(App.Vector(42.4, 14.4, 0), App.Vector(42.4, 15.8, 0)), False)
sketch10.addGeometry(Part.LineSegment(App.Vector(42.4, 15.8, 0), App.Vector(37.2, 15.8, 0)), False)
sketch10.addConstraint(Sketcher.Constraint("Coincident", 0, 2, 1, 1))
sketch10.addConstraint(Sketcher.Constraint("Coincident", 1, 2, 2, 1))
sketch10.addConstraint(Sketcher.Constraint("Coincident", 2, 2, 3, 1))
sketch10.addConstraint(Sketcher.Constraint("Coincident", 3, 2, 0, 1))
sketch10.addConstraint(Sketcher.Constraint("Coincident", 4, 2, 5, 1))
sketch10.addConstraint(Sketcher.Constraint("Coincident", 5, 2, 6, 1))
sketch10.addConstraint(Sketcher.Constraint("Coincident", 6, 2, 7, 1))
sketch10.addConstraint(Sketcher.Constraint("Coincident", 7, 2, 4, 1))
sketch10.addConstraint(Sketcher.Constraint("Vertical", 0))
sketch10.addConstraint(Sketcher.Constraint("Horizontal", 1))
sketch10.addConstraint(Sketcher.Constraint("Vertical", 2))
sketch10.addConstraint(Sketcher.Constraint("Horizontal", 3))
sketch10.addConstraint(Sketcher.Constraint("Vertical", 4))
sketch10.addConstraint(Sketcher.Constraint("Horizontal", 5))
sketch10.addConstraint(Sketcher.Constraint("Vertical", 6))
sketch10.addConstraint(Sketcher.Constraint("Horizontal", 7))
sketch10.addConstraint(Sketcher.Constraint("Horizontal", 1, 2, 4, 2))
sketch10.addConstraint(Sketcher.Constraint("Horizontal", 3, 2, 6, 2))
sketch10.addConstraint(Sketcher.Constraint("Equal", 3, 5))
sketch10.addConstraint(Sketcher.Constraint("DistanceX", 1, 1, 1, 2, 5.1))
sketch10.addConstraint(Sketcher.Constraint("DistanceY", 0, 2, 0, 1, 1.3))
sketch10.addConstraint(Sketcher.Constraint("DistanceX", 1, 2, 4, 2, 10.0))
sketch10.addConstraint(Sketcher.Constraint("DistanceX", -1, 1, 0, 2, 22.15))
sketch10.addConstraint(Sketcher.Constraint("DistanceY", -1, 1, 0, 2, 14.45))
pocket7 = body.newObject("PartDesign::Pocket", "Pocket006")
pocket7.Profile = sketch10
pocket7.Length = 1.3
doc.recompute()

chamfer = body.newObject("PartDesign::Chamfer", "Chamfer")
chamfer.Base = (pocket7, edges_at(pocket7, [
    (-1.75, 49.375, 7.475),
    (-1.75, 49, 9.225),
    (-1.75, 52.5, 10.6),
    (-1.75, 56, 9.225),
    (-1.75, 55.625, 7.475),
    (-1.75, 52.5, 7.1),
    (-1.75, 46.5, 7),
    (-1.75, 44.5, 8),
    (-1.75, 42.5, 7),
    (-1.75, 44.5, 6),
    (16.05, 66.25, 9.85),
]))
chamfer.Size = 1
doc.recompute()

fillet = body.newObject("PartDesign::Fillet", "Fillet")
fillet.Base = (chamfer, edges_at(chamfer, [
    (-1.75, 66.25, 8.5),
    (-1.75, 32.25, 0),
    (24.25, 66.25, 0),
    (-1.75, -1.75, 8.5),
    (24.25, -1.75, 0),
    (50.25, -1.75, 8.5),
    (50.25, 32.25, 0),
    (50.25, 66.25, 8.5),
]))
fillet.Radius = 1.5

doc.recompute()
